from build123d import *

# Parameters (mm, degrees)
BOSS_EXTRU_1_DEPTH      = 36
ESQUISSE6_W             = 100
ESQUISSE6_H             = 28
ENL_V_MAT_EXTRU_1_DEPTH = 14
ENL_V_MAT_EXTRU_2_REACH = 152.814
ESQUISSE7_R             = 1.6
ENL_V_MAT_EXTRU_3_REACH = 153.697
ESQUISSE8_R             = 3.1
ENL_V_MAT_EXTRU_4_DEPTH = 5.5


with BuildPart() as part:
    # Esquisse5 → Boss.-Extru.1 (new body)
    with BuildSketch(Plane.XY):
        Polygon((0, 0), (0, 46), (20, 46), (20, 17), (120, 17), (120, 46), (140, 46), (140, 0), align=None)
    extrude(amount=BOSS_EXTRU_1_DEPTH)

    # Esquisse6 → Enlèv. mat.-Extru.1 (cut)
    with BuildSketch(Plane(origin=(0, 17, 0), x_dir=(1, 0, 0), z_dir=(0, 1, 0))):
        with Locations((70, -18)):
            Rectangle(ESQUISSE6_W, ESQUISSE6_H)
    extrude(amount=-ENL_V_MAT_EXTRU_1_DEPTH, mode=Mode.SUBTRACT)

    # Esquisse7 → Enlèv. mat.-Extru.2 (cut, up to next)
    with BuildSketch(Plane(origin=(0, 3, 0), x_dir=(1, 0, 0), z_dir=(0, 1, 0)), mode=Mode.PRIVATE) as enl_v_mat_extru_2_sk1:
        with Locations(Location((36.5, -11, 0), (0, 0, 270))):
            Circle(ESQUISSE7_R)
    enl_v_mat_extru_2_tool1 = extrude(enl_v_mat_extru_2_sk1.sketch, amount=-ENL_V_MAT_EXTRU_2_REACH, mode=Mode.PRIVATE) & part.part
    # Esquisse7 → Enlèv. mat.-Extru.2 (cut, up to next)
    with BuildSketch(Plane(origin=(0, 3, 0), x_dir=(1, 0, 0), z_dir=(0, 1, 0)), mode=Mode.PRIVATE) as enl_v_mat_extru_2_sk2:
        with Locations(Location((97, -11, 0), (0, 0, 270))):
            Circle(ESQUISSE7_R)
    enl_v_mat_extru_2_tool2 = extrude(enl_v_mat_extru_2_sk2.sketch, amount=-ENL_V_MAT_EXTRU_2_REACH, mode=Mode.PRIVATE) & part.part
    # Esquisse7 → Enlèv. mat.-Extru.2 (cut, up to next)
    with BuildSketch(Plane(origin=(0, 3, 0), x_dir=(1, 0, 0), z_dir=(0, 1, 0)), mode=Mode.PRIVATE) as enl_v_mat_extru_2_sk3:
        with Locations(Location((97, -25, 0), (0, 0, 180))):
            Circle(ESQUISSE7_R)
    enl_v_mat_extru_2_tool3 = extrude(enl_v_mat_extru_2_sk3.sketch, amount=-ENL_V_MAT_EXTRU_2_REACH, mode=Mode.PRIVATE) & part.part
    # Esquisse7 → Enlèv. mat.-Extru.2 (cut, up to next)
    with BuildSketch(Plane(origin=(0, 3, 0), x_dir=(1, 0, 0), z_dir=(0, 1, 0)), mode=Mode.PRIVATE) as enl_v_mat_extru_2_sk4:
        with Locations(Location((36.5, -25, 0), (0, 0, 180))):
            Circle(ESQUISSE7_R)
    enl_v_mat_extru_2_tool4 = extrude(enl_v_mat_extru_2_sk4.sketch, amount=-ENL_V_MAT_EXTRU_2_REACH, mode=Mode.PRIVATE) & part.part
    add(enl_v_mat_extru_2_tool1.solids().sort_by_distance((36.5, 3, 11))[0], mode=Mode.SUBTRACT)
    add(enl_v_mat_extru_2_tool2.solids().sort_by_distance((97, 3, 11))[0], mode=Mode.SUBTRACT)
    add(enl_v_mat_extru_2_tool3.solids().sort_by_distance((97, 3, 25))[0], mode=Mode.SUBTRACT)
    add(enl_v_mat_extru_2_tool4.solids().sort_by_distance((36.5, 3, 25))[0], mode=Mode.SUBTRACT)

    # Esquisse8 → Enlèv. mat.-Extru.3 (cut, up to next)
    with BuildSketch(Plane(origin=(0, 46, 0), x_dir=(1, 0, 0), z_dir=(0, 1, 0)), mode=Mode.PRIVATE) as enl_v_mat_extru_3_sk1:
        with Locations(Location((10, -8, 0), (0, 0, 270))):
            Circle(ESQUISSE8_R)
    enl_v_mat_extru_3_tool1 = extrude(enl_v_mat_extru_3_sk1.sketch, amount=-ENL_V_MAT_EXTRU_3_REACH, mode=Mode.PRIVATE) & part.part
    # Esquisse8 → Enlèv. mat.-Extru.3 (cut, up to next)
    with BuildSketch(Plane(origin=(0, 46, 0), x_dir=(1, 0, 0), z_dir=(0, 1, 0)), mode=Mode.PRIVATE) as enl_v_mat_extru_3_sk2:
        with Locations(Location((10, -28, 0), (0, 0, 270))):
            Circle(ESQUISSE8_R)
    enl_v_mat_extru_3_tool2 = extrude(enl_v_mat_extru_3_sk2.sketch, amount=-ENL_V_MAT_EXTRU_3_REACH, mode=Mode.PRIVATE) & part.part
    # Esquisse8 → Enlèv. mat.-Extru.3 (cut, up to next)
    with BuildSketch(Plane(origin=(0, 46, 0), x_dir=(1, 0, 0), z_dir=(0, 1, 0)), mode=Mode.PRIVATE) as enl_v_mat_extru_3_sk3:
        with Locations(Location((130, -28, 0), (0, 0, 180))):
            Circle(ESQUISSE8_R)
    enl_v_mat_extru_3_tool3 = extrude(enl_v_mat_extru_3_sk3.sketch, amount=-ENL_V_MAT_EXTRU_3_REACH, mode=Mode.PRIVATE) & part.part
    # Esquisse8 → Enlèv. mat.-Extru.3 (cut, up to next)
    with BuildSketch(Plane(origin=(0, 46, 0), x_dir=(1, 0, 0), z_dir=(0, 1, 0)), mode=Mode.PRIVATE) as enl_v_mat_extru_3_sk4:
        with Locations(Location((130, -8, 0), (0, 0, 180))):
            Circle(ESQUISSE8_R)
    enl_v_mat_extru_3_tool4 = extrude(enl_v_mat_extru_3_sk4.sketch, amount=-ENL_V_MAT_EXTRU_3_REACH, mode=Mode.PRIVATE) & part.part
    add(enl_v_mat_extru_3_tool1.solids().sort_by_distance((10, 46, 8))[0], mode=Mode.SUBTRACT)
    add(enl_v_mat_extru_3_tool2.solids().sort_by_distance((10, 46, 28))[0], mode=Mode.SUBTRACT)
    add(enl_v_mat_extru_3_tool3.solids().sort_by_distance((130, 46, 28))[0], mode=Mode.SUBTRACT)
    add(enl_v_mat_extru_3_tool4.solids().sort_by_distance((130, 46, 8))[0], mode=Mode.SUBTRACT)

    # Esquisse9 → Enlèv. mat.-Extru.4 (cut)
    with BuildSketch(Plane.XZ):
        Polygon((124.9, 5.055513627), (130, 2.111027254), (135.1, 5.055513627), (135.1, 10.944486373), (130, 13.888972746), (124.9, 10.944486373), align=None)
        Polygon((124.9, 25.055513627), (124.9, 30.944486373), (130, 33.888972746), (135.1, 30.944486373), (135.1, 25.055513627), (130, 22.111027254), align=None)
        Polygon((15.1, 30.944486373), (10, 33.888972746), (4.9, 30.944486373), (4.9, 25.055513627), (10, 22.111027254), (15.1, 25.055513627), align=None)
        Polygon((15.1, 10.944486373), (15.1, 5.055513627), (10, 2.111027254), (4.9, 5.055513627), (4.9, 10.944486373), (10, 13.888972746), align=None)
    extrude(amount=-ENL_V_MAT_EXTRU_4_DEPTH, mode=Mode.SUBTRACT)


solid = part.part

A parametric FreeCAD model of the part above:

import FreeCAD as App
import Part
import Sketcher
from FreeCAD import Vector
Q = App.Units.Quantity


def add_polygon(sketch, points):
    """Adds a closed chain of lines whose ends are joined by coincident constraints."""
    first, n = sketch.GeometryCount, len(points)
    for a, b in zip(points, points[1:] + points[:1]):
        sketch.addGeometry(Part.LineSegment(App.Vector(*a, 0), App.Vector(*b, 0)), False)
    for i in range(n):
        sketch.addConstraint(Sketcher.Constraint("Coincident", first + i, 2, first + (i + 1) % n, 1))

doc = App.newDocument("Part")
body = doc.addObject("PartDesign::Body", "Body")

# Sketch on XY plane
sketch1 = body.newObject("Sketcher::SketchObject", "Sketch")
sketch1.AttachmentSupport = (doc.getObject("XY_Plane"), [""])
sketch1.MapMode = "FlatFace"
add_polygon(sketch1, [(0, 46), (0, 0), (140, 0), (140, 46), (120, 46), (120, 17), (20, 17), (20, 46)])  # lines 0-7
sketch1.addConstraint([
    Sketcher.Constraint("Vertical", 0),
    Sketcher.Constraint("Horizontal", 1),
    Sketcher.Constraint("Vertical", 2),
    Sketcher.Constraint("Horizontal", 3),
    Sketcher.Constraint("Vertical", 4),
    Sketcher.Constraint("Horizontal", 5),
    Sketcher.Constraint("Vertical", 6),
    Sketcher.Constraint("Horizontal", 7),
    Sketcher.Constraint("Coincident", 0, 2, -1, 1),
    Sketcher.Constraint("Horizontal", 3, 2, 6, 2),
    Sketcher.Constraint("Equal", 3, 7),
    Sketcher.Constraint("DistanceX", 1, 1, 1, 2, 140.0),
    Sketcher.Constraint("DistanceX", 3, 2, 3, 1, 20.0),
    Sketcher.Constraint("DistanceY", 0, 2, 0, 1, 46.0),
    Sketcher.Constraint("DistanceY", 4, 2, 4, 1, 29.0),
])
pad1 = body.newObject("PartDesign::Pad", "Pad")
pad1.Profile = sketch1
pad1.Length = 36

# Sketch on XZ plane
sketch2 = body.newObject("Sketcher::SketchObject", "Sketch001")
sketch2.AttachmentSupport = (doc.getObject("XZ_Plane"), [""])
sketch2.MapMode = "FlatFace"
sketch2.AttachmentOffset = App.Placement(Vector(0, 0, -17), App.Rotation())
add_polygon(sketch2, [(20, 4), (20, 32), (120, 32), (120, 4)])  # lines 0-3
sketch2.addConstraint([
    Sketcher.Constraint("Vertical", 0),
    Sketcher.Constraint("Horizontal", 1),
    Sketcher.Constraint("Vertical", 2),
    Sketcher.Constraint("Horizontal", 3),
    Sketcher.Constraint("DistanceX", 1, 1, 1, 2, 100.0),
    Sketcher.Constraint("DistanceY", 0, 1, 0, 2, 28.0),
    Sketcher.Constraint("DistanceX", -1, 1, 0, 2, 20.0),
    Sketcher.Constraint("DistanceY", -1, 1, 0, 2, 32.0),
])
pocket1 = body.newObject("PartDesign::Pocket", "Pocket")
pocket1.Profile = sketch2
pocket1.Length = 14
pocket1.Reversed = True

# Sketch on XZ plane
sketch3 = body.newObject("Sketcher::SketchObject", "Sketch002")
sketch3.AttachmentSupport = (doc.getObject("XZ_Plane"), [""])
sketch3.MapMode = "FlatFace"
sketch3.AttachmentOffset = App.Placement(Vector(0, 0, -3), App.Rotation())
sketch3.addGeometry(Part.Circle(Vector(36.5, 11, 0), Vector(0, 0, 1), 1.6), False)
sketch3.addConstraint([
    Sketcher.Constraint("Diameter", 0, 3.2),
    Sketcher.Constraint("DistanceY", -1, 1, 0, 3, 11.0),
    Sketcher.Constraint("DistanceX", -1, 1, 0, 3, 36.5),
])
pocket2 = body.newObject("PartDesign::Pocket", "Pocket001")
pocket2.Profile = sketch3
pocket2.Type = "UpToFirst"
pocket2.Reversed = True

# Sketch on XZ plane
sketch4 = body.newObject("Sketcher::SketchObject", "Sketch003")
sketch4.AttachmentSupport = (doc.getObject("XZ_Plane"), [""])
sketch4.MapMode = "FlatFace"
sketch4.AttachmentOffset = App.Placement(Vector(0, 0, -3), App.Rotation())
sketch4.addGeometry(Part.Circle(Vector(97, 11, 0), Vector(0, 0, 1), 1.6), False)
sketch4.addConstraint([
    Sketcher.Constraint("Diameter", 0, 3.2),
    Sketcher.Constraint("DistanceX", -1, 1, 0, 3, 97.0),
    Sketcher.Constraint("DistanceY", -1, 1, 0, 3, 11.0),
])
pocket3 = body.newObject("PartDesign::Pocket", "Pocket002")
pocket3.Profile = sketch4
pocket3.Type = "UpToFirst"
pocket3.Reversed = True

# Sketch on XZ plane
sketch5 = body.newObject("Sketcher::SketchObject", "Sketch004")
sketch5.AttachmentSupport = (doc.getObject("XZ_Plane"), [""])
sketch5.MapMode = "FlatFace"
sketch5.AttachmentOffset = App.Placement(Vector(0, 0, -3), App.Rotation())
sketch5.addGeometry(Part.Circle(Vector(97, 25, 0), Vector(0, 0, 1), 1.6), False)
sketch5.addConstraint([
    Sketcher.Constraint("Diameter", 0, 3.2),
    Sketcher.Constraint("DistanceX", -1, 1, 0, 3, 97.0),
    Sketcher.Constraint("DistanceY", -1, 1, 0, 3, 25.0),
])
pocket4 = body.newObject("PartDesign::Pocket", "Pocket003")
pocket4.Profile = sketch5
pocket4.Type = "UpToFirst"
pocket4.Reversed = True

# Sketch on XZ plane
sketch6 = body.newObject("Sketcher::SketchObject", "Sketch005")
sketch6.AttachmentSupport = (doc.getObject("XZ_Plane"), [""])
sketch6.MapMode = "FlatFace"
sketch6.AttachmentOffset = App.Placement(Vector(0, 0, -3), App.Rotation())
sketch6.addGeometry(Part.Circle(Vector(36.5, 25, 0), Vector(0, 0, 1), 1.6), False)
sketch6.addConstraint([
    Sketcher.Constraint("Diameter", 0, 3.2),
    Sketcher.Constraint("DistanceY", -1, 1, 0, 3, 25.0),
    Sketcher.Constraint("DistanceX", -1, 1, 0, 3, 36.5),
])
pocket5 = body.newObject("PartDesign::Pocket", "Pocket004")
pocket5.Profile = sketch6
pocket5.Type = "UpToFirst"
pocket5.Reversed = True

# Sketch on XZ plane
sketch7 = body.newObject("Sketcher::SketchObject", "Sketch006")
sketch7.AttachmentSupport = (doc.getObject("XZ_Plane"), [""])
sketch7.MapMode = "FlatFace"
sketch7.AttachmentOffset = App.Placement(Vector(0, 0, -46), App.Rotation())
sketch7.addGeometry(Part.Circle(Vector(10, 8, 0), Vector(0, 0, 1), 3.1), False)
sketch7.addConstraint([
    Sketcher.Constraint("Diameter", 0, 6.2),
    Sketcher.Constraint("DistanceX", -1, 1, 0, 3, 10.0),
    Sketcher.Constraint("DistanceY", -1, 1, 0, 3, 8.0),
])
pocket6 = body.newObject("PartDesign::Pocket", "Pocket005")
pocket6.Profile = sketch7
pocket6.Type = "UpToFirst"
pocket6.Reversed = True

# Sketch on XZ plane
sketch8 = body.newObject("Sketcher::SketchObject", "Sketch007")
sketch8.AttachmentSupport = (doc.getObject("XZ_Plane"), [""])
sketch8.MapMode = "FlatFace"
sketch8.AttachmentOffset = App.Placement(Vector(0, 0, -46), App.Rotation())
sketch8.addGeometry(Part.Circle(Vector(10, 28, 0), Vector(0, 0, 1), 3.1), False)
sketch8.addConstraint([
    Sketcher.Constraint("Diameter", 0, 6.2),
    Sketcher.Constraint("DistanceX", -1, 1, 0, 3, 10.0),
    Sketcher.Constraint("DistanceY", -1, 1, 0, 3, 28.0),
])
pocket7 = body.newObject("PartDesign::Pocket", "Pocket006")
pocket7.Profile = sketch8
pocket7.Type = "UpToFirst"
pocket7.Reversed = True

# Sketch on XZ plane
sketch9 = body.newObject("Sketcher::SketchObject", "Sketch008")
sketch9.AttachmentSupport = (doc.getObject("XZ_Plane"), [""])
sketch9.MapMode = "FlatFace"
sketch9.AttachmentOffset = App.Placement(Vector(0, 0, -46), App.Rotation())
sketch9.addGeometry(Part.Circle(Vector(130, 28, 0), Vector(0, 0, 1), 3.1), False)
sketch9.addConstraint([
    Sketcher.Constraint("Diameter", 0, 6.2),
    Sketcher.Constraint("DistanceX", -1, 1, 0, 3, 130.0),
    Sketcher.Constraint("DistanceY", -1, 1, 0, 3, 28.0),
])
pocket8 = body.newObject("PartDesign::Pocket", "Pocket007")
pocket8.Profile = sketch9
pocket8.Type = "UpToFirst"
pocket8.Reversed = True

# Sketch on XZ plane
sketch10 = body.newObject("Sketcher::SketchObject", "Sketch009")
sketch10.AttachmentSupport = (doc.getObject("XZ_Plane"), [""])
sketch10.MapMode = "FlatFace"
sketch10.AttachmentOffset = App.Placement(Vector(0, 0, -46), App.Rotation())
sketch10.addGeometry(Part.Circle(Vector(130, 8, 0), Vector(0, 0, 1), 3.1), False)
sketch10.addConstraint([
    Sketcher.Constraint("Diameter", 0, 6.2),
    Sketcher.Constraint("DistanceX", -1, 1, 0, 3, 130.0),
    Sketcher.Constraint("DistanceY", -1, 1, 0, 3, 8.0),
])
pocket9 = body.newObject("PartDesign::Pocket", "Pocket008")
pocket9.Profile = sketch10
pocket9.Type = "UpToFirst"
pocket9.Reversed = True

# Sketch on XZ plane
sketch11 = body.newObject("Sketcher::SketchObject", "Sketch010")
sketch11.AttachmentSupport = (doc.getObject("XZ_Plane"), [""])
sketch11.MapMode = "FlatFace"
add_polygon(sketch11, [(125, 5), (130, 2), (135, 5), (135, 11), (130, 14), (125, 11)])  # lines 0-5
add_polygon(sketch11, [(125, 31), (125, 25), (130, 22), (135, 25), (135, 31), (130, 34)])  # lines 6-11
add_polygon(sketch11, [(15, 31), (10, 34), (5, 31), (5, 25), (10, 22), (15, 25)])  # lines 12-17
add_polygon(sketch11, [(15, 5), (15, 11), (10, 14), (5, 11), (5, 5), (10, 2)])  # lines 18-23
sketch11.addConstraint([
    Sketcher.Constraint("Vertical", 2),
    Sketcher.Constraint("Vertical", 5),
    Sketcher.Constraint("Vertical", 6),
    Sketcher.Constraint("Vertical", 9),
    Sketcher.Constraint("Vertical", 14),
    Sketcher.Constraint("Vertical", 17),
    Sketcher.Constraint("Vertical", 18),
    Sketcher.Constraint("Vertical", 21),
    Sketcher.Constraint("Parallel", 0, 3),
    Sketcher.Constraint("Parallel", 1, 4),
    Sketcher.Constraint("Parallel", 3, 7),
    Sketcher.Constraint("Parallel", 4, 8),
    Sketcher.Constraint("Parallel", 7, 10),
    Sketcher.Constraint("Parallel", 8, 11),
    Sketcher.Constraint("Parallel", 10, 12),
    Sketcher.Constraint("Parallel", 11, 13),
    Sketcher.Constraint("Parallel", 12, 15),
    Sketcher.Constraint("Parallel", 13, 16),
    Sketcher.Constraint("Parallel", 15, 19),
    Sketcher.Constraint("Parallel", 16, 20),
    Sketcher.Constraint("Parallel", 19, 22),
    Sketcher.Constraint("Parallel", 20, 23),
    Sketcher.Constraint("Horizontal", 2, 2, 4, 2),
    Sketcher.Constraint("Horizontal", 1, 2, 5, 2),
    Sketcher.Constraint("Horizontal", 6, 2, 8, 2),
    Sketcher.Constraint("Horizontal", 9, 2, 11, 2),
    Sketcher.Constraint("Horizontal", 10, 2, 12, 2),
    Sketcher.Constraint("Horizontal", 11, 2, 13, 2),
    Sketcher.Constraint("Horizontal", 8, 2, 14, 2),
    Sketcher.Constraint("Horizontal", 7, 2, 15, 2),
    Sketcher.Constraint("Horizontal", 14, 2, 16, 2),
    Sketcher.Constraint("Horizontal", 4, 2, 18, 2),
    Sketcher.Constraint("Horizontal", 3, 2, 19, 2),
    Sketcher.Constraint("Horizontal", 18, 2, 20, 2),
    Sketcher.Constraint("Horizontal", 5, 2, 21, 2),
    Sketcher.Constraint("Horizontal", 0, 2, 22, 2),
    Sketcher.Constraint("Vertical", 0, 2, 3, 2),
    Sketcher.Constraint("Vertical", 5, 2, 6, 2),
    Sketcher.Constraint("Vertical", 3, 2, 7, 2),
    Sketcher.Constraint("Vertical", 17, 2, 18, 2),
    Sketcher.Constraint("Equal", 5, 6),
    Sketcher.Constraint("Angle", 0, Q("-30 deg")),
    Sketcher.Constraint("DistanceX", -1, 1, 0, 2, 130.0),
    Sketcher.Constraint("DistanceX", -1, 1, 12, 2, 10.0),
    Sketcher.Constraint("DistanceY", 5, 2, 6, 2, 20.0),
    Sketcher.Constraint("DistanceX", -1, 1, 1, 2, 135.1),
    Sketcher.Constraint("DistanceY", 2, 1, 2, 2, 5.888973),
    Sketcher.Constraint("DistanceY", -1, 1, 0, 2, 2.111027),
])
pocket10 = body.newObject("PartDesign::Pocket", "Pocket009")
pocket10.Profile = sketch11
pocket10.Length = 5.5

doc.recompute()
